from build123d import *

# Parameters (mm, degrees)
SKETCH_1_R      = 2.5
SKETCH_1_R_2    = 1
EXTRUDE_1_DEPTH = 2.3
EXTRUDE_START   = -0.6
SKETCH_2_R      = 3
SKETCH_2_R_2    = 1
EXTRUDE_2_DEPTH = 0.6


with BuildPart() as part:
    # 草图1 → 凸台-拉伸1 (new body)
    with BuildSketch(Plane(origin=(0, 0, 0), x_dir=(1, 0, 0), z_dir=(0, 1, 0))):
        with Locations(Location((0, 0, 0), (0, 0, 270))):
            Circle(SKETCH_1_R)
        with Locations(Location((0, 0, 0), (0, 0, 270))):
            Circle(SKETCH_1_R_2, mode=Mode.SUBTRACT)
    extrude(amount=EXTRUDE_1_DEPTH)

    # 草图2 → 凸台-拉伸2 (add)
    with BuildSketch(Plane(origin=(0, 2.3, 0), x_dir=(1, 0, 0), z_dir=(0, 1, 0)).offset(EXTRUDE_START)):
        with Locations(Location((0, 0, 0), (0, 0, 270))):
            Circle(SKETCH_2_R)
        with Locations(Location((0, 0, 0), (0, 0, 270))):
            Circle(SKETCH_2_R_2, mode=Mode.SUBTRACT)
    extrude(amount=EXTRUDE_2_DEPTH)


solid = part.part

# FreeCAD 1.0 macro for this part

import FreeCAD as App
import Part
import Sketcher

V = App.Vector
Q = App.Units.Quantity

doc = App.newDocument("Part")
body = doc.addObject("PartDesign::Body", "Body")

# Sketch on XZ plane
sketch1 = body.newObject("Sketcher::SketchObject", "Sketch")
sketch1.AttachmentSupport = (doc.getObject("XZ_Plane"), [""])
sketch1.MapMode = "FlatFace"
sketch1.addGeometry(Part.Circle(V(0, 0, 0), V(0, 0, 1), 2.5), False)
sketch1.addGeometry(Part.Circle(V(0, 0, 0), V(0, 0, 1), 1), False)
sketch1.addConstraint(Sketcher.Constraint("Coincident", 0, 3, -1, 1))
sketch1.addConstraint(Sketcher.Constraint("Coincident", 1, 3, -1, 1))
sketch1.addConstraint(Sketcher.Constraint("Diameter", 0, Q("5 mm")))
sketch1.addConstraint(Sketcher.Constraint("Diameter", 1, Q("2 mm")))
pad1 = body.newObject("PartDesign::Pad", "Pad")
pad1.Profile = sketch1
pad1.Length = 2.3
pad1.Reversed = True

# Sketch on XZ plane
sketch2 = body.newObject("Sketcher::SketchObject", "Sketch001")
sketch2.AttachmentSupport = (doc.getObject("XZ_Plane"), [""])
sketch2.MapMode = "FlatFace"
sketch2.AttachmentOffset = App.Placement(V(0, 0, -1.7), App.Rotation())
sketch2.addGeometry(Part.Circle(V(0, 0, 0), V(0, 0, 1), 3), False)
sketch2.addGeometry(Part.Circle(V(0, 0, 0), V(0, 0, 1), 1), False)
sketch2.addConstraint(Sketcher.Constraint("Coincident", 0, 3, -1, 1))
sketch2.addConstraint(Sketcher.Constraint("Coincident", 1, 3, -1, 1))
sketch2.addConstraint(Sketcher.Constraint("Diameter", 0, Q("6 mm")))
sketch2.addConstraint(Sketcher.Constraint("Diameter", 1, Q("2 mm")))
pad2 = body.newObject("PartDesign::Pad", "Pad001")
pad2.Profile = sketch2
pad2.Length = 0.6
pad2.Reversed = True

doc.recompute()
